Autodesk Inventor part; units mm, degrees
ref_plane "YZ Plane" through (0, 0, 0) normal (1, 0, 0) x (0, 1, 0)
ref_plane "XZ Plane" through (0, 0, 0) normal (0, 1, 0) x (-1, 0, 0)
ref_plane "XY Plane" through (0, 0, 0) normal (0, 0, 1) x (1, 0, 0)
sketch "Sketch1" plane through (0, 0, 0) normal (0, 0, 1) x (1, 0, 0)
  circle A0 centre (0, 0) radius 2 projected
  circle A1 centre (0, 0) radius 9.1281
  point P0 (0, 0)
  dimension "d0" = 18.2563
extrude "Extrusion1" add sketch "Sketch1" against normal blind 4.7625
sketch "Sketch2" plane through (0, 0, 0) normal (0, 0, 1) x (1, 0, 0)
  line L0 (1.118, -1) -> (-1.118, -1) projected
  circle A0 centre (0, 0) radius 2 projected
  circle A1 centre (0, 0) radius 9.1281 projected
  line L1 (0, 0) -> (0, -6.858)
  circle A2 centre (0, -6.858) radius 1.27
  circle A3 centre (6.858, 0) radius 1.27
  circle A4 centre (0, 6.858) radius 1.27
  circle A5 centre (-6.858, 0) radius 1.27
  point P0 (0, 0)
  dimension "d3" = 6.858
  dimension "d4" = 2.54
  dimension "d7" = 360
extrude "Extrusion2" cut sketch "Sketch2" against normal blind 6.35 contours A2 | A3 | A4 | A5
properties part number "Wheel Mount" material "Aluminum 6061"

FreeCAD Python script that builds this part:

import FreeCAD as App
import Part
import Sketcher
Q = App.Units.Quantity

doc = App.newDocument("Part")
body = doc.addObject("PartDesign::Body", "Body")

sketch1 = body.newObject("Sketcher::SketchObject", "Sketch")
sketch1.AttachmentSupport = (doc.getObject("XY_Plane"), [""])
sketch1.MapMode = "FlatFace"
sketch1.addGeometry(Part.Circle(App.Vector(0, 0, 0), App.Vector(0, 0, 1), 9.1), False)
sketch1.addGeometry(Part.Circle(App.Vector(0, 0, 0), App.Vector(0, 0, 1), 2), False)
sketch1.addConstraint(Sketcher.Constraint("Coincident", 0, 3, -1, 1))
sketch1.addConstraint(Sketcher.Constraint("Coincident", 1, 3, -1, 1))
sketch1.addConstraint(Sketcher.Constraint("Diameter", 0, Q("0.718748 in")))
sketch1.addConstraint(Sketcher.Constraint("Diameter", 1, 4.0))
pad1 = body.newObject("PartDesign::Pad", "Pad")
pad1.Profile = sketch1
pad1.Length = Q("0.1875 in")
pad1.Reversed = True

sketch2 = body.newObject("Sketcher::SketchObject", "Sketch001")
sketch2.AttachmentSupport = (doc.getObject("XY_Plane"), [""])
sketch2.MapMode = "FlatFace"
sketch2.addGeometry(Part.Circle(App.Vector(0, -6.9, 0), App.Vector(0, 0, 1), 1.3), False)
sketch2.addGeometry(Part.Circle(App.Vector(6.9, 0, 0), App.Vector(0, 0, 1), 1.3), False)
sketch2.addGeometry(Part.Circle(App.Vector(0, 6.9, 0), App.Vector(0, 0, 1), 1.3), False)
sketch2.addGeometry(Part.Circle(App.Vector(-6.9, 0, 0), App.Vector(0, 0, 1), 1.3), False)
sketch2.addConstraint(Sketcher.Constraint("Equal", 0, 1))
sketch2.addConstraint(Sketcher.Constraint("Equal", 1, 2))
sketch2.addConstraint(Sketcher.Constraint("Equal", 2, 3))
sketch2.addConstraint(Sketcher.Constraint("Symmetric", 0, 3, 2, 3, -1, 1))
sketch2.addConstraint(Sketcher.Constraint("Symmetric", 1, 3, 3, 3, -1, 1))
sketch2.addConstraint(Sketcher.Constraint("PointOnObject", 0, 3, -2))
sketch2.addConstraint(Sketcher.Constraint("PointOnObject", 1, 3, -1))
sketch2.addConstraint(Sketcher.Constraint("Diameter", 0, Q("0.1 in")))
sketch2.addConstraint(Sketcher.Constraint("DistanceY", 0, 3, -1, 1, Q("0.27 in")))
sketch2.addConstraint(Sketcher.Constraint("DistanceX", -1, 1, 1, 3, Q("0.27 in")))
pocket1 = body.newObject("PartDesign::Pocket", "Pocket")
pocket1.Profile = sketch2
pocket1.Length = Q("0.25 in")

doc.recompute()
